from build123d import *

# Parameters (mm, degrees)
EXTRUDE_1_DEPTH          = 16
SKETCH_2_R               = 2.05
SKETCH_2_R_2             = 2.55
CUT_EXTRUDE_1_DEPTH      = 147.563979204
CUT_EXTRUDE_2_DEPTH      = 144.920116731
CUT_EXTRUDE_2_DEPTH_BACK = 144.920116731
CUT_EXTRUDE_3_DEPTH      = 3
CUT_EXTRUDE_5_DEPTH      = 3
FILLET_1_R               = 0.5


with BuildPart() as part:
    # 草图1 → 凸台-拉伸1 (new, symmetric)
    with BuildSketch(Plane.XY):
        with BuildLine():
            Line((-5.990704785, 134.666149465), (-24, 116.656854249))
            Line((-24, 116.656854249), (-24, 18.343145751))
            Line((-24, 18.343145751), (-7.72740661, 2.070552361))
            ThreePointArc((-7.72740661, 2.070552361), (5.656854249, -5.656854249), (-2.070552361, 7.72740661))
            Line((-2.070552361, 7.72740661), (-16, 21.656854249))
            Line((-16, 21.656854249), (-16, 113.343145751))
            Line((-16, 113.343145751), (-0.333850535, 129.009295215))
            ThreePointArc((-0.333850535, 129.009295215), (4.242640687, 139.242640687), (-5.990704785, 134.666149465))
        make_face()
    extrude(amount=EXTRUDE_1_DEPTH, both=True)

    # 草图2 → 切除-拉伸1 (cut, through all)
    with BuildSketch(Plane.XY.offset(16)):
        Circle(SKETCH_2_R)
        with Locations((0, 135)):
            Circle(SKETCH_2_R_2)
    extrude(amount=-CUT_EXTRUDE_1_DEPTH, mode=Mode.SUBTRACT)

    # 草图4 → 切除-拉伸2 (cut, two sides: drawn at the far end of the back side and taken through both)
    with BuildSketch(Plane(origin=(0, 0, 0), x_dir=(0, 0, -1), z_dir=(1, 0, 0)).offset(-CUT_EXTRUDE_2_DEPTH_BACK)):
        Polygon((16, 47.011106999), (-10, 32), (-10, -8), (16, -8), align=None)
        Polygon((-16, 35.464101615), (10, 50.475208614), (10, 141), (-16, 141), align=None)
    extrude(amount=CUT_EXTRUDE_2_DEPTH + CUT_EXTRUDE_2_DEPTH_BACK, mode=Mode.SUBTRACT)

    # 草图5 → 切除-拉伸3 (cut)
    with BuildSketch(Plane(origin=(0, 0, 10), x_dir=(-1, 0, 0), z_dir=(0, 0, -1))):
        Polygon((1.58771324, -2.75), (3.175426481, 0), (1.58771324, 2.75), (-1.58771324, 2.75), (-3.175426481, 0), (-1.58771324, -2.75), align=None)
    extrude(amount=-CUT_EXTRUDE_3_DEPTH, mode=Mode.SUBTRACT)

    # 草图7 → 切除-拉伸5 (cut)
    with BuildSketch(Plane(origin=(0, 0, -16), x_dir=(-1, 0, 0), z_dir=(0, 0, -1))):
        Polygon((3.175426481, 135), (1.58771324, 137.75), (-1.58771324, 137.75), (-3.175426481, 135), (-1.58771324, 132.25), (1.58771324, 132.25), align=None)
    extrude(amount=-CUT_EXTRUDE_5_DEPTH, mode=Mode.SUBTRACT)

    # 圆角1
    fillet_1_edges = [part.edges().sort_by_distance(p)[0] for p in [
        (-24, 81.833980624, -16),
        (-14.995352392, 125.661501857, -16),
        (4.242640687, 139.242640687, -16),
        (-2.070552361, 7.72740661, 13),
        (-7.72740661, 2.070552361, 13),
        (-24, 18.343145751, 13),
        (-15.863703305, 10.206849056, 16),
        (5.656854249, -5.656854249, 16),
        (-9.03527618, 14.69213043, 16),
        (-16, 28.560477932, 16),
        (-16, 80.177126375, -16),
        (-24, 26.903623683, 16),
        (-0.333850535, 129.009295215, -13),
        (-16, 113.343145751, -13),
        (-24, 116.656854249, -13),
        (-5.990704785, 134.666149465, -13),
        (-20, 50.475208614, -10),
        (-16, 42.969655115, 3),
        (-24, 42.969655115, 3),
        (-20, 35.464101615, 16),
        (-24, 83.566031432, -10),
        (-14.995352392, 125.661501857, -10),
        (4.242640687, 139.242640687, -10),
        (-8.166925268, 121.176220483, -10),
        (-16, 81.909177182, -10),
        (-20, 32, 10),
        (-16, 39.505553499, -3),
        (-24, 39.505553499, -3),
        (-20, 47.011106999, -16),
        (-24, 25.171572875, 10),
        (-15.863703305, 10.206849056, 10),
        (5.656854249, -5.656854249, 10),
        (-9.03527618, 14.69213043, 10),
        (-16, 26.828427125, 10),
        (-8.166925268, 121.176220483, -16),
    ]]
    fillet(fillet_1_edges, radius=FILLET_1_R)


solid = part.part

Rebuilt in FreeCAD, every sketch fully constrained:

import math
import FreeCAD as App
import Part
import Sketcher
from FreeCAD import Vector
Q = App.Units.Quantity


def edges_at(feature, points):
    """Names of the edges that pass closest to the given points."""
    edges = feature.Shape.Edges
    near = lambda p: min(range(len(edges)), key=lambda i: edges[i].distToShape(Part.Vertex(*p))[0])
    return sorted({f"Edge{near(p) + 1}" for p in points})


def add_polygon(sketch, points):
    """Adds a closed chain of lines whose ends are joined by coincident constraints."""
    first, n = sketch.GeometryCount, len(points)
    for a, b in zip(points, points[1:] + points[:1]):
        sketch.addGeometry(Part.LineSegment(App.Vector(*a, 0), App.Vector(*b, 0)), False)
    for i in range(n):
        sketch.addConstraint(Sketcher.Constraint("Coincident", first + i, 2, first + (i + 1) % n, 1))

doc = App.newDocument("Part")
params = doc.addObject("Spreadsheet::Sheet", "Params")
for row, (alias, value) in enumerate([
    ("sketch1_radius", "8 mm"),
    ("sketch1_radius2", "6 mm"),
    ("pad1_length", "32 mm"),
    ("sketch2_diameter", "4.1 mm"),
    ("sketch2_diameter2", "5.1 mm"),
    ("sketch3_width", "40 mm"),
    ("sketch3_height", "26 mm"),
    ("pocket3_length", "3 mm"),
    ("pocket4_length", "3 mm"),
    ("fillet_radius", "0.5 mm"),
], start=1):
    params.set(f"A{row}", alias)
    params.set(f"B{row}", "=" + value)
    params.setAlias(f"B{row}", alias)

body = doc.addObject("PartDesign::Body", "Body")

# Sketch on XY plane
sketch1 = body.newObject("Sketcher::SketchObject", "Sketch")
sketch1.AttachmentSupport = (doc.getObject("XY_Plane"), [""])
sketch1.MapMode = "FlatFace"
sketch1.addGeometry([
    Part.LineSegment(Vector(-6, 135, 0), Vector(-24, 117, 0)),  # 0
    Part.LineSegment(Vector(-24, 117, 0), Vector(-24, 18, 0)),  # 1
    Part.LineSegment(Vector(-24, 18, 0), Vector(-8, 2, 0)),  # 2
    Part.ArcOfCircle(Part.Circle(Vector(0, 0, 0), Vector(0, 0, 1), 8), math.radians(165), math.radians(465)),  # 3
    Part.LineSegment(Vector(-2, 8, 0), Vector(-16, 22, 0)),  # 4
    Part.LineSegment(Vector(-16, 22, 0), Vector(-16, 113, 0)),  # 5
    Part.LineSegment(Vector(-16, 113, 0), Vector(0, 129, 0)),  # 6
    Part.ArcOfCircle(Part.Circle(Vector(0, 135, 0), Vector(0, 0, 1), 6), math.radians(-93), math.radians(183)),  # 7
], False)
sketch1.addConstraint([
    Sketcher.Constraint("Coincident", 0, 2, 1, 1),
    Sketcher.Constraint("Coincident", 1, 2, 2, 1),
    Sketcher.Constraint("Coincident", 2, 2, 3, 1),
    Sketcher.Constraint("Coincident", 3, 2, 4, 1),
    Sketcher.Constraint("Coincident", 4, 2, 5, 1),
    Sketcher.Constraint("Coincident", 5, 2, 6, 1),
    Sketcher.Constraint("Coincident", 6, 2, 7, 1),
    Sketcher.Constraint("Coincident", 7, 2, 0, 1),
    Sketcher.Constraint("Vertical", 1),
    Sketcher.Constraint("Vertical", 5),
    Sketcher.Constraint("Coincident", 3, 3, -1, 1),
    Sketcher.Constraint("PointOnObject", 7, 3, -2),
    Sketcher.Constraint("Perpendicular", 0, 2),
    Sketcher.Constraint("Parallel", 2, 4),
    Sketcher.Constraint("Perpendicular", 4, 6),
    Sketcher.Constraint("Radius", 3, 8.0),
    Sketcher.Constraint("Radius", 7, 6.0),
    Sketcher.Constraint("Angle", 0, Q("-135 deg")),
    Sketcher.Constraint("DistanceY", -1, 1, 7, 3, 135.0),
    Sketcher.Constraint("DistanceX", 0, 2, -1, 1, 24.0),
    Sketcher.Constraint("DistanceX", 4, 2, -1, 1, 16.0),
    Sketcher.Constraint("DistanceY", 4, 2, 0, 2, 95.0),
    Sketcher.Constraint("DistanceY", 1, 2, 5, 2, 95.0),
    Sketcher.Constraint("DistanceY", 1, 2, 1, 1, 98.313708),
    Sketcher.Constraint("DistanceY", 2, 2, 0, 2, 114.586302),
])
sketch1.setExpression("Constraints[15]", "Params.sketch1_radius")
sketch1.setExpression("Constraints[16]", "Params.sketch1_radius2")
pad1 = body.newObject("PartDesign::Pad", "Pad")
pad1.Profile = sketch1
pad1.setExpression("Length", "Params.pad1_length")
pad1.Midplane = True

# Sketch on XY plane
sketch2 = body.newObject("Sketcher::SketchObject", "Sketch001")
sketch2.AttachmentSupport = (doc.getObject("XY_Plane"), [""])
sketch2.MapMode = "FlatFace"
sketch2.AttachmentOffset = App.Placement(Vector(0, 0, 16), App.Rotation())
sketch2.addGeometry([
    Part.Circle(Vector(0, 0, 0), Vector(0, 0, 1), 2),
    Part.Circle(Vector(0, 135, 0), Vector(0, 0, 1), 2.5),
], False)
sketch2.addConstraint([
    Sketcher.Constraint("Coincident", 0, 3, -1, 1),
    Sketcher.Constraint("PointOnObject", 1, 3, -2),
    Sketcher.Constraint("Diameter", 0, 4.1),
    Sketcher.Constraint("Diameter", 1, 5.1),
    Sketcher.Constraint("DistanceY", -1, 1, 1, 3, 135.0),
])
sketch2.setExpression("Constraints[2]", "Params.sketch2_diameter")
sketch2.setExpression("Constraints[3]", "Params.sketch2_diameter2")
pocket1 = body.newObject("PartDesign::Pocket", "Pocket")
pocket1.Profile = sketch2
pocket1.Type = "ThroughAll"

# Sketch on YZ plane
sketch3 = body.newObject("Sketcher::SketchObject", "Sketch002")
sketch3.AttachmentSupport = (doc.getObject("YZ_Plane"), [""])
sketch3.MapMode = "FlatFace"
add_polygon(sketch3, [(47, -16), (32, 10), (-8, 10), (-8, -16)])  # lines 0-3
add_polygon(sketch3, [(35, 16), (50, -10), (141, -10), (141, 16)])  # lines 4-7
sketch3.addConstraint([
    Sketcher.Constraint("Horizontal", 1),
    Sketcher.Constraint("Vertical", 2),
    Sketcher.Constraint("Horizontal", 3),
    Sketcher.Constraint("Horizontal", 5),
    Sketcher.Constraint("Vertical", 6),
    Sketcher.Constraint("Horizontal", 7),
    Sketcher.Constraint("Parallel", 0, 4),
    Sketcher.Constraint("Equal", 2, 6),
    Sketcher.Constraint("DistanceX", 1, 2, 1, 1, 40.0),
    Sketcher.Constraint("DistanceY", 2, 2, 2, 1, 26.0),
    Sketcher.Constraint("Angle", 0, Q("120 deg")),
    Sketcher.Constraint("DistanceX", -1, 1, 0, 2, 32.0),
    Sketcher.Constraint("DistanceY", -1, 1, 0, 2, 10.0),
    Sketcher.Constraint("DistanceY", 4, 2, -1, 1, 10.0),
    Sketcher.Constraint("DistanceX", -1, 1, 5, 2, 141.0),
    Sketcher.Constraint("DistanceX", 7, 2, 7, 1, 105.535898),
])
sketch3.setExpression("Constraints[16]", "Params.sketch3_width")
sketch3.setExpression("Constraints[17]", "Params.sketch3_height")
pocket2 = body.newObject("PartDesign::Pocket", "Pocket001")
pocket2.Profile = sketch3
pocket2.Type = "ThroughAll"
pocket2.Midplane = True

# Sketch on XY plane
sketch4 = body.newObject("Sketcher::SketchObject", "Sketch003")
sketch4.AttachmentSupport = (doc.getObject("XY_Plane"), [""])
sketch4.MapMode = "FlatFace"
sketch4.AttachmentOffset = App.Placement(Vector(0, 0, 10), App.Rotation())
add_polygon(sketch4, [(-1.6, -2.8), (-3.2, 0), (-1.6, 2.8), (1.6, 2.8), (3.2, 0), (1.6, -2.8)])  # lines 0-5
sketch4.addConstraint([
    Sketcher.Constraint("Horizontal", 2),
    Sketcher.Constraint("Horizontal", 5),
    Sketcher.Constraint("Symmetric", 0, 2, 3, 2, -1, 1),
    Sketcher.Constraint("Symmetric", 1, 2, 4, 2, -1, 1),
    Sketcher.Constraint("PointOnObject", 0, 2, -1),
    Sketcher.Constraint("Parallel", 0, 3),
    Sketcher.Constraint("Vertical", 2, 2, 4, 2),
    Sketcher.Constraint("Angle", 0, Q("120 deg")),
    Sketcher.Constraint("DistanceY", 4, 2, 2, 2, 5.5),
    Sketcher.Constraint("DistanceX", 2, 1, 2, 2, 3.175426),
])
pocket3 = body.newObject("PartDesign::Pocket", "Pocket002")
pocket3.Profile = sketch4
pocket3.setExpression("Length", "Params.pocket3_length")
pocket3.Reversed = True

# Sketch on XY plane
sketch5 = body.newObject("Sketcher::SketchObject", "Sketch004")
sketch5.AttachmentSupport = (doc.getObject("XY_Plane"), [""])
sketch5.MapMode = "FlatFace"
sketch5.AttachmentOffset = App.Placement(Vector(0, 0, -16), App.Rotation())
add_polygon(sketch5, [(-3.2, 135), (-1.6, 137.8), (1.6, 137.8), (3.2, 135), (1.6, 132.2), (-1.6, 132.2)])  # lines 0-5
sketch5.addConstraint([
    Sketcher.Constraint("Horizontal", 1),
    Sketcher.Constraint("Horizontal", 4),
    Sketcher.Constraint("Symmetric", 2, 2, 5, 2, -2),
    Sketcher.Constraint("Parallel", 0, 3),
    Sketcher.Constraint("Parallel", 2, 5),
    Sketcher.Constraint("Vertical", 1, 2, 3, 2),
    Sketcher.Constraint("Vertical", 0, 2, 4, 2),
    Sketcher.Constraint("Angle", 0, Q("60 deg")),
    Sketcher.Constraint("DistanceY", -1, 1, 2, 2, 135.0),
    Sketcher.Constraint("DistanceY", 3, 2, 1, 2, 5.5),
    Sketcher.Constraint("DistanceX", 1, 1, 1, 2, 3.175426),
])
pocket4 = body.newObject("PartDesign::Pocket", "Pocket003")
pocket4.Profile = sketch5
pocket4.setExpression("Length", "Params.pocket4_length")
pocket4.Reversed = True
doc.recompute()

fillet = body.newObject("PartDesign::Fillet", "Fillet")
fillet.Base = (pocket4, edges_at(pocket4, [
    (-24, 81.834, -16),
    (-14.995, 125.662, -16),
    (4.243, 139.243, -16),
    (-2.071, 7.727, 13),
    (-7.727, 2.071, 13),
    (-24, 18.343, 13),
    (-15.864, 10.207, 16),
    (5.657, -5.657, 16),
    (-9.035, 14.692, 16),
    (-16, 28.56, 16),
    (-16, 80.177, -16),
    (-24, 26.904, 16),
    (-0.334, 129.009, -13),
    (-16, 113.343, -13),
    (-24, 116.657, -13),
    (-5.991, 134.666, -13),
    (-20, 50.475, -10),
    (-16, 42.97, 3),
    (-24, 42.97, 3),
    (-20, 35.464, 16),
    (-24, 83.566, -10),
    (-14.995, 125.662, -10),
    (4.243, 139.243, -10),
    (-8.167, 121.176, -10),
    (-16, 81.909, -10),
    (-20, 32, 10),
    (-16, 39.506, -3),
    (-24, 39.506, -3),
    (-20, 47.011, -16),
    (-24, 25.172, 10),
    (-15.864, 10.207, 10),
    (5.657, -5.657, 10),
    (-9.035, 14.692, 10),
    (-16, 26.828, 10),
    (-8.167, 121.176, -16),
]))
fillet.setExpression("Radius", "Params.fillet_radius")

doc.recompute()
